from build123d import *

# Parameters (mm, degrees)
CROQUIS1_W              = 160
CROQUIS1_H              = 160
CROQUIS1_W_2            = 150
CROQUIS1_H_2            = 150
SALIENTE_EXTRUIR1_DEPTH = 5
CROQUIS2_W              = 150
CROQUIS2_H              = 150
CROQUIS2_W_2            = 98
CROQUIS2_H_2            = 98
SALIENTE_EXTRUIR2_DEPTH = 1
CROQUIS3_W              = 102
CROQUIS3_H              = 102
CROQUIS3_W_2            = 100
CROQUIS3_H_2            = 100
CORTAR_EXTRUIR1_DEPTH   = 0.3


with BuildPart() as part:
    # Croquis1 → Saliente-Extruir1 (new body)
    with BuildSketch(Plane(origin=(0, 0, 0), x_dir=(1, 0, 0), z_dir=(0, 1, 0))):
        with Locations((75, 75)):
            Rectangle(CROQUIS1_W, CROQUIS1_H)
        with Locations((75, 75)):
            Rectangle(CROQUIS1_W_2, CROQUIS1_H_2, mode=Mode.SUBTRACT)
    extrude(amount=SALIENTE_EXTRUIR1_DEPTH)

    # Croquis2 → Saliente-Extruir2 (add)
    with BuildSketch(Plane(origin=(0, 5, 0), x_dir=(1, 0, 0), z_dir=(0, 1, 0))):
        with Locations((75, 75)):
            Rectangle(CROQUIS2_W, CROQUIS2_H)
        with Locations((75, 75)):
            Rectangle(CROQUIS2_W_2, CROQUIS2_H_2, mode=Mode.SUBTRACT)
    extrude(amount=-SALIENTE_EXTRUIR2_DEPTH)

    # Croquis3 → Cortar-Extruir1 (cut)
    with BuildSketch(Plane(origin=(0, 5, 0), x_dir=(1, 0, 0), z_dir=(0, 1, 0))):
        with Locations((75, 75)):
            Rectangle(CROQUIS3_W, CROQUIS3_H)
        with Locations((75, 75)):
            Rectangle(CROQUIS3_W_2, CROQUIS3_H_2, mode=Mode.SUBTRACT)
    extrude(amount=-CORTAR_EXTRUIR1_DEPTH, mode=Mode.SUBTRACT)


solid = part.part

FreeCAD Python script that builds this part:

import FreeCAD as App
import Part
import Sketcher

V = App.Vector
Q = App.Units.Quantity


def add_polygon(sketch, points):
    """Adds a closed chain of lines whose ends are joined by coincident constraints."""
    first, n = sketch.GeometryCount, len(points)
    for a, b in zip(points, points[1:] + points[:1]):
        sketch.addGeometry(Part.LineSegment(App.Vector(*a, 0), App.Vector(*b, 0)), False)
    for i in range(n):
        sketch.addConstraint(Sketcher.Constraint("Coincident", first + i, 2, first + (i + 1) % n, 1))

doc = App.newDocument("Part")
body = doc.addObject("PartDesign::Body", "Body")

# Sketch on XZ plane
sketch1 = doc.addObject("Sketcher::SketchObject", "Sketch")
body.addObject(sketch1)
sketch1.AttachmentSupport = (doc.XZ_Plane, [""])
sketch1.MapMode = "FlatFace"
add_polygon(sketch1, [(-5, -155), (-5, 5), (155, 5), (155, -155)])  # lines 0-3
add_polygon(sketch1, [(150, 0), (0, 0), (0, -150), (150, -150)])  # lines 4-7
sketch1.addConstraint([
    Sketcher.Constraint("Vertical", 0),
    Sketcher.Constraint("Horizontal", 1),
    Sketcher.Constraint("Vertical", 2),
    Sketcher.Constraint("Horizontal", 3),
    Sketcher.Constraint("Horizontal", 4),
    Sketcher.Constraint("Vertical", 5),
    Sketcher.Constraint("Horizontal", 6),
    Sketcher.Constraint("Vertical", 7),
    Sketcher.Constraint("Coincident", 4, 2, -1, 1),
    Sketcher.Constraint("Equal", 3, 0),
    Sketcher.Constraint("Equal", 6, 5),
    Sketcher.Constraint("DistanceX", 1, 1, 1, 2, Q("160 mm")),
    Sketcher.Constraint("DistanceX", 4, 2, 4, 1, Q("150 mm")),
    Sketcher.Constraint("DistanceX", 0, 2, -1, 1, Q("5 mm")),
    Sketcher.Constraint("DistanceY", -1, 1, 0, 2, Q("5 mm")),
])
pad1 = doc.addObject("PartDesign::Pad", "Pad")
body.addObject(pad1)
pad1.Profile = sketch1
pad1.Length = 5
pad1.Reversed = True

# Sketch on XZ plane
sketch2 = doc.addObject("Sketcher::SketchObject", "Sketch001")
body.addObject(sketch2)
sketch2.AttachmentSupport = (doc.XZ_Plane, [""])
sketch2.MapMode = "FlatFace"
sketch2.AttachmentOffset = App.Placement(V(0, 0, -5), App.Rotation())
add_polygon(sketch2, [(0, -150), (0, 0), (150, 0), (150, -150)])  # lines 0-3
add_polygon(sketch2, [(124, -26), (26, -26), (26, -124), (124, -124)])  # lines 4-7
sketch2.addConstraint([
    Sketcher.Constraint("Vertical", 0),
    Sketcher.Constraint("Horizontal", 1),
    Sketcher.Constraint("Vertical", 2),
    Sketcher.Constraint("Horizontal", 3),
    Sketcher.Constraint("Horizontal", 4),
    Sketcher.Constraint("Vertical", 5),
    Sketcher.Constraint("Horizontal", 6),
    Sketcher.Constraint("Vertical", 7),
    Sketcher.Constraint("Coincident", 0, 2, -1, 1),
    Sketcher.Constraint("Equal", 3, 0),
    Sketcher.Constraint("Equal", 6, 5),
    Sketcher.Constraint("DistanceX", 1, 1, 1, 2, Q("150 mm")),
    Sketcher.Constraint("DistanceX", 4, 2, 4, 1, Q("98 mm")),
    Sketcher.Constraint("DistanceX", -1, 1, 4, 2, Q("26 mm")),
    Sketcher.Constraint("DistanceY", 4, 2, -1, 1, Q("26 mm")),
])
pad2 = doc.addObject("PartDesign::Pad", "Pad001")
body.addObject(pad2)
pad2.Profile = sketch2
pad2.Length = 1

# Sketch on XZ plane
sketch3 = doc.addObject("Sketcher::SketchObject", "Sketch002")
body.addObject(sketch3)
sketch3.AttachmentSupport = (doc.XZ_Plane, [""])
sketch3.MapMode = "FlatFace"
sketch3.AttachmentOffset = App.Placement(V(0, 0, -5), App.Rotation())
add_polygon(sketch3, [(24, -126), (24, -24), (126, -24), (126, -126)])  # lines 0-3
add_polygon(sketch3, [(125, -25), (25, -25), (25, -125), (125, -125)])  # lines 4-7
sketch3.addConstraint([
    Sketcher.Constraint("Vertical", 0),
    Sketcher.Constraint("Horizontal", 1),
    Sketcher.Constraint("Vertical", 2),
    Sketcher.Constraint("Horizontal", 3),
    Sketcher.Constraint("Horizontal", 4),
    Sketcher.Constraint("Vertical", 5),
    Sketcher.Constraint("Horizontal", 6),
    Sketcher.Constraint("Vertical", 7),
    Sketcher.Constraint("Equal", 3, 0),
    Sketcher.Constraint("Equal", 6, 5),
    Sketcher.Constraint("DistanceX", 1, 1, 1, 2, Q("102 mm")),
    Sketcher.Constraint("DistanceX", 4, 2, 4, 1, Q("100 mm")),
    Sketcher.Constraint("DistanceX", -1, 1, 0, 2, Q("24 mm")),
    Sketcher.Constraint("DistanceY", 0, 2, -1, 1, Q("24 mm")),
    Sketcher.Constraint("DistanceX", -1, 1, 4, 2, Q("25 mm")),
    Sketcher.Constraint("DistanceY", 4, 2, -1, 1, Q("25 mm")),
])
pocket1 = doc.addObject("PartDesign::Pocket", "Pocket")
body.addObject(pocket1)
pocket1.Profile = sketch3
pocket1.Length = 0.3
pocket1.Reversed = True

doc.recompute()
